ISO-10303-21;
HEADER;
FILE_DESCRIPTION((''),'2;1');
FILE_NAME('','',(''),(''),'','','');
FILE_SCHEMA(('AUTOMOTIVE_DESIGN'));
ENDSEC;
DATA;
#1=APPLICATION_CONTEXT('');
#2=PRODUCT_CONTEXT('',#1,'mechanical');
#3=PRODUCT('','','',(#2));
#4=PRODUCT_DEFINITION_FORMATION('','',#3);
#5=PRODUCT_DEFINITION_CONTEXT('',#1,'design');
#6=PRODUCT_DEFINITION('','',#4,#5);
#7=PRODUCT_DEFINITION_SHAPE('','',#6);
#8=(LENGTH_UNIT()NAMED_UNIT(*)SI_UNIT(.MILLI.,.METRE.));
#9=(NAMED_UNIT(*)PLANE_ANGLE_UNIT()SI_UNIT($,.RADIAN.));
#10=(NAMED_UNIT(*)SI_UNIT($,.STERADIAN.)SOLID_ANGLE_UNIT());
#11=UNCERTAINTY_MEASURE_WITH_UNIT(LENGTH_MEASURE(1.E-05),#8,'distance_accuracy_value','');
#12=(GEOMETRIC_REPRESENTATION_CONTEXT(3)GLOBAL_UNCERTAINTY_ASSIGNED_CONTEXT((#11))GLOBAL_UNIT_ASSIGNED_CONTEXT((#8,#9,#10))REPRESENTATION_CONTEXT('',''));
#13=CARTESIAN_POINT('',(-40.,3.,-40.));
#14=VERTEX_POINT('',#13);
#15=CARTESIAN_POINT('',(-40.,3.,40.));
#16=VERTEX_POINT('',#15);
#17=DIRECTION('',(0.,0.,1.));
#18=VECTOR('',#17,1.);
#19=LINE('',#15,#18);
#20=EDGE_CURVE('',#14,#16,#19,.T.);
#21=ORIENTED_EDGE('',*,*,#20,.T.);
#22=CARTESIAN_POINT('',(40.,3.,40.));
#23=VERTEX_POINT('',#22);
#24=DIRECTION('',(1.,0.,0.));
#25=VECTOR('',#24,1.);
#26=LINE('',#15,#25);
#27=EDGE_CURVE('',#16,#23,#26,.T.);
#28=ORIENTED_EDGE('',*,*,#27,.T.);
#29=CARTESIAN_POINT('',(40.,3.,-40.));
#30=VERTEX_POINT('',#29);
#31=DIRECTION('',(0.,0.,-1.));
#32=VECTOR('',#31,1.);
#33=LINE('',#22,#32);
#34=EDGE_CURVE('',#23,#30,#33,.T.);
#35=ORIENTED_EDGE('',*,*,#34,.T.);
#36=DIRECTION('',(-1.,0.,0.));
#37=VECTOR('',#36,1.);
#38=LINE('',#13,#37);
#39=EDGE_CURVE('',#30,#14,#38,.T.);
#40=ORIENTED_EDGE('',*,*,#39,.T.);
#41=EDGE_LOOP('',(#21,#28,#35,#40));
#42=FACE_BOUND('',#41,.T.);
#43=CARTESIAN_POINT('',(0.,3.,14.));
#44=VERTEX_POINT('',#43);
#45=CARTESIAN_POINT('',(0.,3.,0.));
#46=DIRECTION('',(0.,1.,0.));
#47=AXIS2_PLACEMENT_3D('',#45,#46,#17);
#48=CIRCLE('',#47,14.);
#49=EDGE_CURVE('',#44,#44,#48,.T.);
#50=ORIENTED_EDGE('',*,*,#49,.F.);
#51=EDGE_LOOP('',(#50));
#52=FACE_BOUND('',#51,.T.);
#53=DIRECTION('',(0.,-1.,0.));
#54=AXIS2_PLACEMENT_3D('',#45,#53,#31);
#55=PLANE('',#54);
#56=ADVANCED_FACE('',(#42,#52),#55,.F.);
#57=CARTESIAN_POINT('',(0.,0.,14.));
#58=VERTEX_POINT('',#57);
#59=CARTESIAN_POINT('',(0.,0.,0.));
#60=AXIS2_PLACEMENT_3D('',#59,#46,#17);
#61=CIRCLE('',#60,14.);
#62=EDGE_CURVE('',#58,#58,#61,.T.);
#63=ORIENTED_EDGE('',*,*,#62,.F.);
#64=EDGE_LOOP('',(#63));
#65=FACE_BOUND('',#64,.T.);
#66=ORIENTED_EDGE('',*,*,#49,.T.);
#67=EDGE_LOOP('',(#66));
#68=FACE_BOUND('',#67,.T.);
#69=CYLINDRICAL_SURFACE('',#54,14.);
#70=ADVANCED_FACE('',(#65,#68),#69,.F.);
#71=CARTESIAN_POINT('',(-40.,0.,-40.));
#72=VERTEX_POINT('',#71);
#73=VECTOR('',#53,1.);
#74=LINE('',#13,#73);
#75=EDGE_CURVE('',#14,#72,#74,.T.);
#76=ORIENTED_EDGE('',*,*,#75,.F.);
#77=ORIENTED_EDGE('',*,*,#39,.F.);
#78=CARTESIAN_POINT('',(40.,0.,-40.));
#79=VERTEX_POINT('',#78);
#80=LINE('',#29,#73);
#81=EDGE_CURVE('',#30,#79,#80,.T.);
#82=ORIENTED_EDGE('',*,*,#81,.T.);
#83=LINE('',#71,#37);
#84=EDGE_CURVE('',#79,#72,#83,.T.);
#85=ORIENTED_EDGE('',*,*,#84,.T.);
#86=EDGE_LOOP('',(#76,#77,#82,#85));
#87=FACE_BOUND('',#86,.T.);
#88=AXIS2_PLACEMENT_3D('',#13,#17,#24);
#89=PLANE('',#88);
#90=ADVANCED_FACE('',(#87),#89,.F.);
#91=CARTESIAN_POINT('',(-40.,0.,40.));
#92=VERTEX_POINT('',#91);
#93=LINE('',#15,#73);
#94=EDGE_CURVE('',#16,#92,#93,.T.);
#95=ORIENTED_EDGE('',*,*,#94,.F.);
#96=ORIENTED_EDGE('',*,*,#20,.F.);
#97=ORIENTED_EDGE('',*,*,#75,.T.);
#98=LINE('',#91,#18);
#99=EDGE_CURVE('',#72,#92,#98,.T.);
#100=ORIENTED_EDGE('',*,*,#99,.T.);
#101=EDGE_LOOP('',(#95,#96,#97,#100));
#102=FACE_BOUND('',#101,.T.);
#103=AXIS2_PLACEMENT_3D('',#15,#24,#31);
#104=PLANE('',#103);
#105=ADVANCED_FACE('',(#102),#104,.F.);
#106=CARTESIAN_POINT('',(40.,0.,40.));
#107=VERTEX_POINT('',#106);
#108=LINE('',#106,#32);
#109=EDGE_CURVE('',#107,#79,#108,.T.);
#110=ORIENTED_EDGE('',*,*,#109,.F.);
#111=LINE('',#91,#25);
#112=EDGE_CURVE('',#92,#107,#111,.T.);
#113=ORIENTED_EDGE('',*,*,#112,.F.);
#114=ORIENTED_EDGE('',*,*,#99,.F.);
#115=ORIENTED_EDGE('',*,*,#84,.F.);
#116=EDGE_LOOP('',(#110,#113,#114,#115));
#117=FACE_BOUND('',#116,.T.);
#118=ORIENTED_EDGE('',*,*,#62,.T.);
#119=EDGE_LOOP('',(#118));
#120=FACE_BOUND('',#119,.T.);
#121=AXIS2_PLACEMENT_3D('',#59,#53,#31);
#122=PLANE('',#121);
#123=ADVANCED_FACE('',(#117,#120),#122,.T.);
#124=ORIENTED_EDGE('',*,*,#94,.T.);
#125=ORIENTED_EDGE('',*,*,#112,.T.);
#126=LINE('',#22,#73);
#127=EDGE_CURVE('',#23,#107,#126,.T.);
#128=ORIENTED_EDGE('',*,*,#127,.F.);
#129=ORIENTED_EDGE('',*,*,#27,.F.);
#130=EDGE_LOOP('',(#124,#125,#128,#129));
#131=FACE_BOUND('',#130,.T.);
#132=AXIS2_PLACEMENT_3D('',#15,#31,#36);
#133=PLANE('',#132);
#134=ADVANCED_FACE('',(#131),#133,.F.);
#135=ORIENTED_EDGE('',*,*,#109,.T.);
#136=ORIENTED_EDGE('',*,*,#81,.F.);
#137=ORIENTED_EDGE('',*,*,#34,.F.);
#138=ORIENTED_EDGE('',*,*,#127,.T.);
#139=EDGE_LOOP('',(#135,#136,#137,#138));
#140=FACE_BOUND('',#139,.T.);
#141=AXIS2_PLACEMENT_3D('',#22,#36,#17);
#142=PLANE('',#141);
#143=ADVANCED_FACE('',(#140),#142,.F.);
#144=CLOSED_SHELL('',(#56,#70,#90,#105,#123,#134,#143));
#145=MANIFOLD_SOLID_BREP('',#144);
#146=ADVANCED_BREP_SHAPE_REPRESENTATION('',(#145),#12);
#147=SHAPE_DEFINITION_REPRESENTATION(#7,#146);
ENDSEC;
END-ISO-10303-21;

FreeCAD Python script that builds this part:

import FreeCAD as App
import Part
import Sketcher
Q = App.Units.Quantity

doc = App.newDocument("Part")
params = doc.addObject("Spreadsheet::Sheet", "Params")
for row, (alias, value) in enumerate([
    ("sketch1_diameter", "28 mm"),
    ("sketch1_width", "80 mm"),
    ("pad1_length", "3 mm"),
], start=1):
    params.set(f"A{row}", alias)
    params.set(f"B{row}", "=" + value)
    params.setAlias(f"B{row}", alias)

body = doc.addObject("PartDesign::Body", "Body")

# Sketch on XZ plane
sketch1 = body.newObject("Sketcher::SketchObject", "Sketch")
sketch1.AttachmentSupport = (doc.getObject("XZ_Plane"), [""])
sketch1.MapMode = "FlatFace"
sketch1.addGeometry(Part.LineSegment(App.Vector(-40, -40, 0), App.Vector(-40, 40, 0)), False)
sketch1.addGeometry(Part.LineSegment(App.Vector(-40, 40, 0), App.Vector(40, 40, 0)), False)
sketch1.addGeometry(Part.LineSegment(App.Vector(40, 40, 0), App.Vector(40, -40, 0)), False)
sketch1.addGeometry(Part.LineSegment(App.Vector(40, -40, 0), App.Vector(-40, -40, 0)), False)
sketch1.addGeometry(Part.Circle(App.Vector(0, 0, 0), App.Vector(0, 0, 1), 14), False)
sketch1.addConstraint(Sketcher.Constraint("Coincident", 0, 2, 1, 1))
sketch1.addConstraint(Sketcher.Constraint("Coincident", 1, 2, 2, 1))
sketch1.addConstraint(Sketcher.Constraint("Coincident", 2, 2, 3, 1))
sketch1.addConstraint(Sketcher.Constraint("Coincident", 3, 2, 0, 1))
sketch1.addConstraint(Sketcher.Constraint("Vertical", 0))
sketch1.addConstraint(Sketcher.Constraint("Horizontal", 1))
sketch1.addConstraint(Sketcher.Constraint("Vertical", 2))
sketch1.addConstraint(Sketcher.Constraint("Horizontal", 3))
sketch1.addConstraint(Sketcher.Constraint("Coincident", 4, 3, -1, 1))
sketch1.addConstraint(Sketcher.Constraint("Symmetric", 0, 2, 2, 2, -1, 1))
sketch1.addConstraint(Sketcher.Constraint("Equal", 3, 0))
sketch1.addConstraint(Sketcher.Constraint("Diameter", 4, Q("28 mm")))
sketch1.addConstraint(Sketcher.Constraint("DistanceX", 1, 1, 1, 2, Q("80 mm")))
sketch1.setExpression("Constraints[11]", "Params.sketch1_diameter")
sketch1.setExpression("Constraints[12]", "Params.sketch1_width")
pad1 = body.newObject("PartDesign::Pad", "Pad")
pad1.Profile = sketch1
pad1.setExpression("Length", "Params.pad1_length")
pad1.Reversed = True

doc.recompute()
